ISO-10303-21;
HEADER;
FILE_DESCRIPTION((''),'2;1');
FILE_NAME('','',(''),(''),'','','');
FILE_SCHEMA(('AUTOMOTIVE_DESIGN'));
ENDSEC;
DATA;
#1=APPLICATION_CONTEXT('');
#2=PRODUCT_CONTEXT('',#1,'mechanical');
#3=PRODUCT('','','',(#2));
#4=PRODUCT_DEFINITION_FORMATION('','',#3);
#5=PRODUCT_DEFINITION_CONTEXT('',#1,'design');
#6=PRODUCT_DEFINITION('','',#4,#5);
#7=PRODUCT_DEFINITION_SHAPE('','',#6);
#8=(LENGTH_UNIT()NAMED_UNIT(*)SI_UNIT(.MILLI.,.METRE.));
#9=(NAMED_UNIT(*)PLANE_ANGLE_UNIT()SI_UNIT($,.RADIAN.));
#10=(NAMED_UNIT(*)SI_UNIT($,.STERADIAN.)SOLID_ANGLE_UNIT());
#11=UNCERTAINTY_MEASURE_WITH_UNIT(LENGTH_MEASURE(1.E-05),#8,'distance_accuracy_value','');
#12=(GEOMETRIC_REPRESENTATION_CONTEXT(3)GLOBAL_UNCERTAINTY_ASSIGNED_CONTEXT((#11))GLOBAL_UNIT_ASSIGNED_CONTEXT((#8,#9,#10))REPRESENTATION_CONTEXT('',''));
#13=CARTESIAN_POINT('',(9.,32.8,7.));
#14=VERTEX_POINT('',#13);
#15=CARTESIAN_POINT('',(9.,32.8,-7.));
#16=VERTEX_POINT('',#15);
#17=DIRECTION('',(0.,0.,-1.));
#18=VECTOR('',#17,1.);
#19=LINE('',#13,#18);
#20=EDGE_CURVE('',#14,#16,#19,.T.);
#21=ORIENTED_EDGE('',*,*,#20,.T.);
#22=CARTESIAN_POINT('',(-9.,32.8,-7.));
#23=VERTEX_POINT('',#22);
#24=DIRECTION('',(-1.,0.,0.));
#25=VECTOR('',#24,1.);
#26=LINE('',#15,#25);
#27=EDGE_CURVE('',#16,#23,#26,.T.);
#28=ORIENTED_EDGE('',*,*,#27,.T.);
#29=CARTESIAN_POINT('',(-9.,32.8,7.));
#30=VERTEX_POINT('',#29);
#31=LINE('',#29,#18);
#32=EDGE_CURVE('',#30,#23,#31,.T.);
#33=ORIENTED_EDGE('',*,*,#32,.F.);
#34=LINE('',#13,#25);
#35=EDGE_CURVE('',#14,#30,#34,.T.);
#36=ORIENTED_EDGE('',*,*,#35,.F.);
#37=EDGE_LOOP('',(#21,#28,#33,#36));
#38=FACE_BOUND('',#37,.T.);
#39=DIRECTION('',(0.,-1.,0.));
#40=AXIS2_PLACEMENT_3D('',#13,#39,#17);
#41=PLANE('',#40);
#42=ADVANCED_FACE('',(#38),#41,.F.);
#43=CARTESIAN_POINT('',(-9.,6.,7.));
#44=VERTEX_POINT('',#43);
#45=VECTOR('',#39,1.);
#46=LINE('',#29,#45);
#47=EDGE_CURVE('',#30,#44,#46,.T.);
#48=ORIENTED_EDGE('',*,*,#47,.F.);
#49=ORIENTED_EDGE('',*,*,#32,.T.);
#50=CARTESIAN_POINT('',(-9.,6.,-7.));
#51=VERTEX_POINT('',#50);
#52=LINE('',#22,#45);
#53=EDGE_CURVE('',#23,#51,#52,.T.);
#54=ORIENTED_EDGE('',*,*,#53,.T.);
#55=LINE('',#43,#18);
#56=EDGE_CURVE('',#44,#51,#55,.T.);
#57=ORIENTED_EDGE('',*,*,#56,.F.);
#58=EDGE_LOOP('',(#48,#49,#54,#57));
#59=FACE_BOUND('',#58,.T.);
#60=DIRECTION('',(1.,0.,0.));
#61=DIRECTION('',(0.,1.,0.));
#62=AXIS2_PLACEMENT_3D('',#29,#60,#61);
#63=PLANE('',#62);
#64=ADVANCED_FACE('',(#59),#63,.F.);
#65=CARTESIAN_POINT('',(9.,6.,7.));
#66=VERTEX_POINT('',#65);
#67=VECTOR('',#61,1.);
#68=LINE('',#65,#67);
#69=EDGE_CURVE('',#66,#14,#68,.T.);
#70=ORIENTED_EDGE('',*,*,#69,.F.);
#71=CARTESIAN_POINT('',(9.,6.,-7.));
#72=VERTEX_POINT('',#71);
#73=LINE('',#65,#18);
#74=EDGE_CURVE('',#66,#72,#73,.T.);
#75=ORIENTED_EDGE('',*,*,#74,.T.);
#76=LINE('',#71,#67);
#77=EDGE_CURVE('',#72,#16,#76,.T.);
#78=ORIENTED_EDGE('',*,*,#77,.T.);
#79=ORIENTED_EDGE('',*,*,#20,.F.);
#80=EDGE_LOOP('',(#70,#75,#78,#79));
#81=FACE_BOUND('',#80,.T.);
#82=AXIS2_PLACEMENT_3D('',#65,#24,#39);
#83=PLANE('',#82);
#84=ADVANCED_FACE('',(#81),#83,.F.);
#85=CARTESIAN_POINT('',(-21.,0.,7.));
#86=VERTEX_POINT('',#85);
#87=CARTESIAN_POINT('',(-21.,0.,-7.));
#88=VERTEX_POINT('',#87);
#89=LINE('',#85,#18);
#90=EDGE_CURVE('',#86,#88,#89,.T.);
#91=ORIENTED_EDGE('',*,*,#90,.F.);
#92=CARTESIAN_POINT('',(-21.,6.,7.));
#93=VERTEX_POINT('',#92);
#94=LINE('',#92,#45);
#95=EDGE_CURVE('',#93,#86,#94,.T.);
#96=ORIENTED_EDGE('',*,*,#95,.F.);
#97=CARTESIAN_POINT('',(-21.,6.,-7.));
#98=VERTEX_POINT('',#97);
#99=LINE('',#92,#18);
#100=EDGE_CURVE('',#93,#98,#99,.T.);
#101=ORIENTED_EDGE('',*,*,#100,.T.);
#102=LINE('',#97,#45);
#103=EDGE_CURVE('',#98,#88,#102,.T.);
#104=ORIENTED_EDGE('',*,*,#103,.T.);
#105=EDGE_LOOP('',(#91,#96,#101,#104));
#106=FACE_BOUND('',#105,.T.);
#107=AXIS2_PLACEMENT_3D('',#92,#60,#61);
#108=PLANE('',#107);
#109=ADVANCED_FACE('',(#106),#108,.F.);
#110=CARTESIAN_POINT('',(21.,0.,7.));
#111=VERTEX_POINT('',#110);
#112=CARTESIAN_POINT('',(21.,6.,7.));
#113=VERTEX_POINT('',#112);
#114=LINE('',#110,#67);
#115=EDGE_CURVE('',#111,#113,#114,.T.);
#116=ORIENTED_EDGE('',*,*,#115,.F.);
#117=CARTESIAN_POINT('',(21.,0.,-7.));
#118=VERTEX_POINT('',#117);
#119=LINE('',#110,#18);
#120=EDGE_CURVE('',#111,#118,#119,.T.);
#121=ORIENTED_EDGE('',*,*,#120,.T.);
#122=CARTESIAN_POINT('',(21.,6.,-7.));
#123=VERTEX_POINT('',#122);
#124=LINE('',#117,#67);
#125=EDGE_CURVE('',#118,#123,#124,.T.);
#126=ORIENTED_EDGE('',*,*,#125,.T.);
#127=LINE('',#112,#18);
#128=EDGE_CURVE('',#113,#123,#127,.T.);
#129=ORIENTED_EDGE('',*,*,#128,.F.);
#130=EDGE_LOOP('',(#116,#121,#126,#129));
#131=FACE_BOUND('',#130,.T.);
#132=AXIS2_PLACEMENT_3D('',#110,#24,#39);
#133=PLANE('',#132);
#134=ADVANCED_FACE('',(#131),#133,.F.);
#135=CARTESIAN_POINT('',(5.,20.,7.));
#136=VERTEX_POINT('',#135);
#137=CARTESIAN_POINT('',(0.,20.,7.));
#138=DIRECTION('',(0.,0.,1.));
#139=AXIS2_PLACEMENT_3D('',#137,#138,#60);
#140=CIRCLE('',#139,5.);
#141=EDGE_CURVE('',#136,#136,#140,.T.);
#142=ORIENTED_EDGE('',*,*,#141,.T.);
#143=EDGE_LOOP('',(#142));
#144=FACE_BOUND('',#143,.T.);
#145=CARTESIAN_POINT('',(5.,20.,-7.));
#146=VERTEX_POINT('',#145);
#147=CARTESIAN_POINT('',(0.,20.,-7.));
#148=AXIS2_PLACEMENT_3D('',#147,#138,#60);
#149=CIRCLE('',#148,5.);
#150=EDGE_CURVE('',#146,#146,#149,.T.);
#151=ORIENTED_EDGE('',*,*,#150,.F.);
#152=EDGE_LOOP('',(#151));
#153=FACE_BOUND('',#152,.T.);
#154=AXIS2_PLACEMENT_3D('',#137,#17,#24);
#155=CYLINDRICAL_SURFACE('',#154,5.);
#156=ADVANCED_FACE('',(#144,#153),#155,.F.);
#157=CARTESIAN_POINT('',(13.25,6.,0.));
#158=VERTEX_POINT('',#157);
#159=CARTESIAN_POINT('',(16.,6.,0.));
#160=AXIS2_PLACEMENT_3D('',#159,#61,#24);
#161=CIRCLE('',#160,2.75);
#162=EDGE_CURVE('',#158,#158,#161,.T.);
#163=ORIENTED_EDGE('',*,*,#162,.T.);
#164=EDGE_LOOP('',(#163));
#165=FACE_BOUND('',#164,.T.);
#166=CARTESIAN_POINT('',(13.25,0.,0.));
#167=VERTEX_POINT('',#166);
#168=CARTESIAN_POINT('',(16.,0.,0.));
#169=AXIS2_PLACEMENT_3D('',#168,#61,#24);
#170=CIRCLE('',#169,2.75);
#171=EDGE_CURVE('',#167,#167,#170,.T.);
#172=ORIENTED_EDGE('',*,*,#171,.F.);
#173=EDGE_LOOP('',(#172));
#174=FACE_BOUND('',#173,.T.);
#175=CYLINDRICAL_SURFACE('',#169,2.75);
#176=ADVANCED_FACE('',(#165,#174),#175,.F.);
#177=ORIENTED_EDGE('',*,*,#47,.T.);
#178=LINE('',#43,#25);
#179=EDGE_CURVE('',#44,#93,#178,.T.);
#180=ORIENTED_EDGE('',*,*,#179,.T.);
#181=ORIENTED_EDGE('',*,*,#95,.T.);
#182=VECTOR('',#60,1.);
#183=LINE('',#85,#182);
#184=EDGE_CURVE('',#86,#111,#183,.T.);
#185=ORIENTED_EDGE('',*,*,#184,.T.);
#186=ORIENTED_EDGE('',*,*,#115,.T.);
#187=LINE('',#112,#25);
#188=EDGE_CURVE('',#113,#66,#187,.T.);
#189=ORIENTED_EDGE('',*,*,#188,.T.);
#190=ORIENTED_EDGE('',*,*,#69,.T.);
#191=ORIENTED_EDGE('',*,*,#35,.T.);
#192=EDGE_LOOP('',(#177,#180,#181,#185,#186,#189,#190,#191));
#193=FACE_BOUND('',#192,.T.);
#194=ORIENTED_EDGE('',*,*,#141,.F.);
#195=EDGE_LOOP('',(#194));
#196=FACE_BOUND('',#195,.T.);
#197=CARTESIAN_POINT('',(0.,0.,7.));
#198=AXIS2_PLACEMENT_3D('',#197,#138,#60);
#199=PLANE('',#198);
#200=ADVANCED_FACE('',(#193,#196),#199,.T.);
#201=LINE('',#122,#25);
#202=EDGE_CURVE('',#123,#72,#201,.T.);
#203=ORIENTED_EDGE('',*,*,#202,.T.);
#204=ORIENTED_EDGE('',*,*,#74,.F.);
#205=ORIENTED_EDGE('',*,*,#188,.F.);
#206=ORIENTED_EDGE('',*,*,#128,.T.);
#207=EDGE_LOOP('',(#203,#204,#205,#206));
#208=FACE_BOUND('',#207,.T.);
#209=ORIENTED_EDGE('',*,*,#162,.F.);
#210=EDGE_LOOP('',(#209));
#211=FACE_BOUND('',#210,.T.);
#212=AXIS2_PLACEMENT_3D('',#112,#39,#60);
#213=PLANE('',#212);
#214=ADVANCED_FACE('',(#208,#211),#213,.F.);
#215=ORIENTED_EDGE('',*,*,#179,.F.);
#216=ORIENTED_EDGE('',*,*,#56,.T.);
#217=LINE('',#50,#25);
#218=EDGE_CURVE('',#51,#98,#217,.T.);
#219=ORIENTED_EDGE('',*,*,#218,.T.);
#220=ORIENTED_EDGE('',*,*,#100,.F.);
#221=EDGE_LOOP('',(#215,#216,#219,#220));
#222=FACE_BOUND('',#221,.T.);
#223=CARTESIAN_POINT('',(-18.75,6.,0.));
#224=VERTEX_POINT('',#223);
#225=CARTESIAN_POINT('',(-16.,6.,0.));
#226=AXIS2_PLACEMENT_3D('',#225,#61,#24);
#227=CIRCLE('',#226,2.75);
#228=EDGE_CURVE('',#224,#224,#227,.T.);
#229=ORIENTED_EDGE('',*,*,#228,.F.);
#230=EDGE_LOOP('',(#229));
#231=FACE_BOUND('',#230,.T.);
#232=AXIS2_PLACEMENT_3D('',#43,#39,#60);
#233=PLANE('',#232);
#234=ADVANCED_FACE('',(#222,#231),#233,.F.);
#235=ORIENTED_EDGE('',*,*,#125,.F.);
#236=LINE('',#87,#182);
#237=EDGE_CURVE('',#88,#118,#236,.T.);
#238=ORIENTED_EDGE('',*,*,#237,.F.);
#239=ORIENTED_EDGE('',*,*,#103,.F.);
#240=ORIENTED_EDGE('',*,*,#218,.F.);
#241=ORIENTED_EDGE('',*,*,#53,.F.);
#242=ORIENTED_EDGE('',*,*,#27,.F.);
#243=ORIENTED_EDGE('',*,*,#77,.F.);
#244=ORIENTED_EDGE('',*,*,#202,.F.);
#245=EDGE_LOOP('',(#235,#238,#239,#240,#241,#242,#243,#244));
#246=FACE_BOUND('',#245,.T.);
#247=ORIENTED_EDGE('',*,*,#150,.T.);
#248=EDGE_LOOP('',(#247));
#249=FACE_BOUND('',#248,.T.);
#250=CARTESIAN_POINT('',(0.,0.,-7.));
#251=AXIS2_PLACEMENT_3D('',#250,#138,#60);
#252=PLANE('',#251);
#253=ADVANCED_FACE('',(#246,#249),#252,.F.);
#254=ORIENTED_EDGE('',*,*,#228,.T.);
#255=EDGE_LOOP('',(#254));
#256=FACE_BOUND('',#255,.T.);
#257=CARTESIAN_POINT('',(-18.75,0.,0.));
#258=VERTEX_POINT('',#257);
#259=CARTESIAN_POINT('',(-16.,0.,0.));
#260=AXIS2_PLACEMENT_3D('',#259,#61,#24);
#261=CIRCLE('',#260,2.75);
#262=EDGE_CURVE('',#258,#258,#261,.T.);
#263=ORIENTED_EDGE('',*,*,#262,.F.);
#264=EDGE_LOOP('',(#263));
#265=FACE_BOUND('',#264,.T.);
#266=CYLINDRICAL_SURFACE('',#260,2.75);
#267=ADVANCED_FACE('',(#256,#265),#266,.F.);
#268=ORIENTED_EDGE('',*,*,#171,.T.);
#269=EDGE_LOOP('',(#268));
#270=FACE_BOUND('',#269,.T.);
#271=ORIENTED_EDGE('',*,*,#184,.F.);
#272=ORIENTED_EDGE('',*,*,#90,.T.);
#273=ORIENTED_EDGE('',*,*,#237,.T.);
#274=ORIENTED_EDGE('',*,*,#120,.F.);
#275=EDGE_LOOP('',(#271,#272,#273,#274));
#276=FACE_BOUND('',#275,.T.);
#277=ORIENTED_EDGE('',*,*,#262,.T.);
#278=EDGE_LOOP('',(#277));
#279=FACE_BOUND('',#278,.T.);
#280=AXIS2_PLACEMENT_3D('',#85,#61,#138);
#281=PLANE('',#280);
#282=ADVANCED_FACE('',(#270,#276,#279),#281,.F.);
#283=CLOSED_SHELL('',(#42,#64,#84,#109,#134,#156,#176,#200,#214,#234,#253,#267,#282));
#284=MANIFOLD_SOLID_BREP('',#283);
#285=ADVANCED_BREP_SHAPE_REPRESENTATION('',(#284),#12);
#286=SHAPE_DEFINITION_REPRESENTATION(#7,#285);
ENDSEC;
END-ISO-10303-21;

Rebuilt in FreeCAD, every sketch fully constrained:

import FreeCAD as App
import Part
import Sketcher

V = App.Vector


def add_polygon(sketch, points):
    """Adds a closed chain of lines whose ends are joined by coincident constraints."""
    first, n = sketch.GeometryCount, len(points)
    for a, b in zip(points, points[1:] + points[:1]):
        sketch.addGeometry(Part.LineSegment(App.Vector(*a, 0), App.Vector(*b, 0)), False)
    for i in range(n):
        sketch.addConstraint(Sketcher.Constraint("Coincident", first + i, 2, first + (i + 1) % n, 1))

doc = App.newDocument("Part")
body = doc.addObject("PartDesign::Body", "Body")

# Sketch on XY plane
sketch1 = body.newObject("Sketcher::SketchObject", "Sketch")
sketch1.AttachmentSupport = (doc.getObject("XY_Plane"), [""])
sketch1.MapMode = "FlatFace"
add_polygon(sketch1, [(-21, 0), (21, 0), (21, 6), (9, 6), (9, 33), (-9, 33), (-9, 6), (-21, 6)])  # lines 0-7
sketch1.addGeometry(Part.Circle(V(0, 20, 0), V(0, 0, 1), 5), False)  # 8
sketch1.addConstraint(Sketcher.Constraint("Horizontal", 0))
sketch1.addConstraint(Sketcher.Constraint("Vertical", 1))
sketch1.addConstraint(Sketcher.Constraint("Horizontal", 2))
sketch1.addConstraint(Sketcher.Constraint("Vertical", 3))
sketch1.addConstraint(Sketcher.Constraint("Horizontal", 4))
sketch1.addConstraint(Sketcher.Constraint("Vertical", 5))
sketch1.addConstraint(Sketcher.Constraint("Horizontal", 6))
sketch1.addConstraint(Sketcher.Constraint("Vertical", 7))
sketch1.addConstraint(Sketcher.Constraint("Symmetric", 0, 2, 7, 2, -1, 1))
sketch1.addConstraint(Sketcher.Constraint("Symmetric", 2, 2, 5, 2, -2))
sketch1.addConstraint(Sketcher.Constraint("PointOnObject", 8, 3, -2))
sketch1.addConstraint(Sketcher.Constraint("Diameter", 8, 10.0))
sketch1.addConstraint(Sketcher.Constraint("DistanceX", 0, 1, 0, 2, 42.0))
sketch1.addConstraint(Sketcher.Constraint("DistanceX", 2, 2, 2, 1, 12.0))
sketch1.addConstraint(Sketcher.Constraint("DistanceY", 1, 1, 1, 2, 6.0))
sketch1.addConstraint(Sketcher.Constraint("DistanceY", 3, 1, 3, 2, 26.8))
sketch1.addConstraint(Sketcher.Constraint("DistanceY", -1, 1, 8, 3, 20.0))
pad1 = body.newObject("PartDesign::Pad", "Pad")
pad1.Profile = sketch1
pad1.Length = 14
pad1.Midplane = True

# Sketch on XZ plane
sketch2 = body.newObject("Sketcher::SketchObject", "Sketch001")
sketch2.AttachmentSupport = (doc.getObject("XZ_Plane"), [""])
sketch2.MapMode = "FlatFace"
sketch2.AttachmentOffset = App.Placement(V(0, 0, -6), App.Rotation())
sketch2.addGeometry(Part.Circle(V(-16, 0, 0), V(0, 0, 1), 2.8), False)
sketch2.addGeometry(Part.Circle(V(16, 0, 0), V(0, 0, 1), 2.8), False)
sketch2.addConstraint(Sketcher.Constraint("Equal", 0, 1))
sketch2.addConstraint(Sketcher.Constraint("Symmetric", 0, 3, 1, 3, -1, 1))
sketch2.addConstraint(Sketcher.Constraint("PointOnObject", 0, 3, -1))
sketch2.addConstraint(Sketcher.Constraint("Diameter", 0, 5.5))
sketch2.addConstraint(Sketcher.Constraint("DistanceX", 0, 3, -1, 1, 16.0))
pocket1 = body.newObject("PartDesign::Pocket", "Pocket")
pocket1.Profile = sketch2
pocket1.Type = "ThroughAll"
pocket1.Reversed = True

doc.recompute()
